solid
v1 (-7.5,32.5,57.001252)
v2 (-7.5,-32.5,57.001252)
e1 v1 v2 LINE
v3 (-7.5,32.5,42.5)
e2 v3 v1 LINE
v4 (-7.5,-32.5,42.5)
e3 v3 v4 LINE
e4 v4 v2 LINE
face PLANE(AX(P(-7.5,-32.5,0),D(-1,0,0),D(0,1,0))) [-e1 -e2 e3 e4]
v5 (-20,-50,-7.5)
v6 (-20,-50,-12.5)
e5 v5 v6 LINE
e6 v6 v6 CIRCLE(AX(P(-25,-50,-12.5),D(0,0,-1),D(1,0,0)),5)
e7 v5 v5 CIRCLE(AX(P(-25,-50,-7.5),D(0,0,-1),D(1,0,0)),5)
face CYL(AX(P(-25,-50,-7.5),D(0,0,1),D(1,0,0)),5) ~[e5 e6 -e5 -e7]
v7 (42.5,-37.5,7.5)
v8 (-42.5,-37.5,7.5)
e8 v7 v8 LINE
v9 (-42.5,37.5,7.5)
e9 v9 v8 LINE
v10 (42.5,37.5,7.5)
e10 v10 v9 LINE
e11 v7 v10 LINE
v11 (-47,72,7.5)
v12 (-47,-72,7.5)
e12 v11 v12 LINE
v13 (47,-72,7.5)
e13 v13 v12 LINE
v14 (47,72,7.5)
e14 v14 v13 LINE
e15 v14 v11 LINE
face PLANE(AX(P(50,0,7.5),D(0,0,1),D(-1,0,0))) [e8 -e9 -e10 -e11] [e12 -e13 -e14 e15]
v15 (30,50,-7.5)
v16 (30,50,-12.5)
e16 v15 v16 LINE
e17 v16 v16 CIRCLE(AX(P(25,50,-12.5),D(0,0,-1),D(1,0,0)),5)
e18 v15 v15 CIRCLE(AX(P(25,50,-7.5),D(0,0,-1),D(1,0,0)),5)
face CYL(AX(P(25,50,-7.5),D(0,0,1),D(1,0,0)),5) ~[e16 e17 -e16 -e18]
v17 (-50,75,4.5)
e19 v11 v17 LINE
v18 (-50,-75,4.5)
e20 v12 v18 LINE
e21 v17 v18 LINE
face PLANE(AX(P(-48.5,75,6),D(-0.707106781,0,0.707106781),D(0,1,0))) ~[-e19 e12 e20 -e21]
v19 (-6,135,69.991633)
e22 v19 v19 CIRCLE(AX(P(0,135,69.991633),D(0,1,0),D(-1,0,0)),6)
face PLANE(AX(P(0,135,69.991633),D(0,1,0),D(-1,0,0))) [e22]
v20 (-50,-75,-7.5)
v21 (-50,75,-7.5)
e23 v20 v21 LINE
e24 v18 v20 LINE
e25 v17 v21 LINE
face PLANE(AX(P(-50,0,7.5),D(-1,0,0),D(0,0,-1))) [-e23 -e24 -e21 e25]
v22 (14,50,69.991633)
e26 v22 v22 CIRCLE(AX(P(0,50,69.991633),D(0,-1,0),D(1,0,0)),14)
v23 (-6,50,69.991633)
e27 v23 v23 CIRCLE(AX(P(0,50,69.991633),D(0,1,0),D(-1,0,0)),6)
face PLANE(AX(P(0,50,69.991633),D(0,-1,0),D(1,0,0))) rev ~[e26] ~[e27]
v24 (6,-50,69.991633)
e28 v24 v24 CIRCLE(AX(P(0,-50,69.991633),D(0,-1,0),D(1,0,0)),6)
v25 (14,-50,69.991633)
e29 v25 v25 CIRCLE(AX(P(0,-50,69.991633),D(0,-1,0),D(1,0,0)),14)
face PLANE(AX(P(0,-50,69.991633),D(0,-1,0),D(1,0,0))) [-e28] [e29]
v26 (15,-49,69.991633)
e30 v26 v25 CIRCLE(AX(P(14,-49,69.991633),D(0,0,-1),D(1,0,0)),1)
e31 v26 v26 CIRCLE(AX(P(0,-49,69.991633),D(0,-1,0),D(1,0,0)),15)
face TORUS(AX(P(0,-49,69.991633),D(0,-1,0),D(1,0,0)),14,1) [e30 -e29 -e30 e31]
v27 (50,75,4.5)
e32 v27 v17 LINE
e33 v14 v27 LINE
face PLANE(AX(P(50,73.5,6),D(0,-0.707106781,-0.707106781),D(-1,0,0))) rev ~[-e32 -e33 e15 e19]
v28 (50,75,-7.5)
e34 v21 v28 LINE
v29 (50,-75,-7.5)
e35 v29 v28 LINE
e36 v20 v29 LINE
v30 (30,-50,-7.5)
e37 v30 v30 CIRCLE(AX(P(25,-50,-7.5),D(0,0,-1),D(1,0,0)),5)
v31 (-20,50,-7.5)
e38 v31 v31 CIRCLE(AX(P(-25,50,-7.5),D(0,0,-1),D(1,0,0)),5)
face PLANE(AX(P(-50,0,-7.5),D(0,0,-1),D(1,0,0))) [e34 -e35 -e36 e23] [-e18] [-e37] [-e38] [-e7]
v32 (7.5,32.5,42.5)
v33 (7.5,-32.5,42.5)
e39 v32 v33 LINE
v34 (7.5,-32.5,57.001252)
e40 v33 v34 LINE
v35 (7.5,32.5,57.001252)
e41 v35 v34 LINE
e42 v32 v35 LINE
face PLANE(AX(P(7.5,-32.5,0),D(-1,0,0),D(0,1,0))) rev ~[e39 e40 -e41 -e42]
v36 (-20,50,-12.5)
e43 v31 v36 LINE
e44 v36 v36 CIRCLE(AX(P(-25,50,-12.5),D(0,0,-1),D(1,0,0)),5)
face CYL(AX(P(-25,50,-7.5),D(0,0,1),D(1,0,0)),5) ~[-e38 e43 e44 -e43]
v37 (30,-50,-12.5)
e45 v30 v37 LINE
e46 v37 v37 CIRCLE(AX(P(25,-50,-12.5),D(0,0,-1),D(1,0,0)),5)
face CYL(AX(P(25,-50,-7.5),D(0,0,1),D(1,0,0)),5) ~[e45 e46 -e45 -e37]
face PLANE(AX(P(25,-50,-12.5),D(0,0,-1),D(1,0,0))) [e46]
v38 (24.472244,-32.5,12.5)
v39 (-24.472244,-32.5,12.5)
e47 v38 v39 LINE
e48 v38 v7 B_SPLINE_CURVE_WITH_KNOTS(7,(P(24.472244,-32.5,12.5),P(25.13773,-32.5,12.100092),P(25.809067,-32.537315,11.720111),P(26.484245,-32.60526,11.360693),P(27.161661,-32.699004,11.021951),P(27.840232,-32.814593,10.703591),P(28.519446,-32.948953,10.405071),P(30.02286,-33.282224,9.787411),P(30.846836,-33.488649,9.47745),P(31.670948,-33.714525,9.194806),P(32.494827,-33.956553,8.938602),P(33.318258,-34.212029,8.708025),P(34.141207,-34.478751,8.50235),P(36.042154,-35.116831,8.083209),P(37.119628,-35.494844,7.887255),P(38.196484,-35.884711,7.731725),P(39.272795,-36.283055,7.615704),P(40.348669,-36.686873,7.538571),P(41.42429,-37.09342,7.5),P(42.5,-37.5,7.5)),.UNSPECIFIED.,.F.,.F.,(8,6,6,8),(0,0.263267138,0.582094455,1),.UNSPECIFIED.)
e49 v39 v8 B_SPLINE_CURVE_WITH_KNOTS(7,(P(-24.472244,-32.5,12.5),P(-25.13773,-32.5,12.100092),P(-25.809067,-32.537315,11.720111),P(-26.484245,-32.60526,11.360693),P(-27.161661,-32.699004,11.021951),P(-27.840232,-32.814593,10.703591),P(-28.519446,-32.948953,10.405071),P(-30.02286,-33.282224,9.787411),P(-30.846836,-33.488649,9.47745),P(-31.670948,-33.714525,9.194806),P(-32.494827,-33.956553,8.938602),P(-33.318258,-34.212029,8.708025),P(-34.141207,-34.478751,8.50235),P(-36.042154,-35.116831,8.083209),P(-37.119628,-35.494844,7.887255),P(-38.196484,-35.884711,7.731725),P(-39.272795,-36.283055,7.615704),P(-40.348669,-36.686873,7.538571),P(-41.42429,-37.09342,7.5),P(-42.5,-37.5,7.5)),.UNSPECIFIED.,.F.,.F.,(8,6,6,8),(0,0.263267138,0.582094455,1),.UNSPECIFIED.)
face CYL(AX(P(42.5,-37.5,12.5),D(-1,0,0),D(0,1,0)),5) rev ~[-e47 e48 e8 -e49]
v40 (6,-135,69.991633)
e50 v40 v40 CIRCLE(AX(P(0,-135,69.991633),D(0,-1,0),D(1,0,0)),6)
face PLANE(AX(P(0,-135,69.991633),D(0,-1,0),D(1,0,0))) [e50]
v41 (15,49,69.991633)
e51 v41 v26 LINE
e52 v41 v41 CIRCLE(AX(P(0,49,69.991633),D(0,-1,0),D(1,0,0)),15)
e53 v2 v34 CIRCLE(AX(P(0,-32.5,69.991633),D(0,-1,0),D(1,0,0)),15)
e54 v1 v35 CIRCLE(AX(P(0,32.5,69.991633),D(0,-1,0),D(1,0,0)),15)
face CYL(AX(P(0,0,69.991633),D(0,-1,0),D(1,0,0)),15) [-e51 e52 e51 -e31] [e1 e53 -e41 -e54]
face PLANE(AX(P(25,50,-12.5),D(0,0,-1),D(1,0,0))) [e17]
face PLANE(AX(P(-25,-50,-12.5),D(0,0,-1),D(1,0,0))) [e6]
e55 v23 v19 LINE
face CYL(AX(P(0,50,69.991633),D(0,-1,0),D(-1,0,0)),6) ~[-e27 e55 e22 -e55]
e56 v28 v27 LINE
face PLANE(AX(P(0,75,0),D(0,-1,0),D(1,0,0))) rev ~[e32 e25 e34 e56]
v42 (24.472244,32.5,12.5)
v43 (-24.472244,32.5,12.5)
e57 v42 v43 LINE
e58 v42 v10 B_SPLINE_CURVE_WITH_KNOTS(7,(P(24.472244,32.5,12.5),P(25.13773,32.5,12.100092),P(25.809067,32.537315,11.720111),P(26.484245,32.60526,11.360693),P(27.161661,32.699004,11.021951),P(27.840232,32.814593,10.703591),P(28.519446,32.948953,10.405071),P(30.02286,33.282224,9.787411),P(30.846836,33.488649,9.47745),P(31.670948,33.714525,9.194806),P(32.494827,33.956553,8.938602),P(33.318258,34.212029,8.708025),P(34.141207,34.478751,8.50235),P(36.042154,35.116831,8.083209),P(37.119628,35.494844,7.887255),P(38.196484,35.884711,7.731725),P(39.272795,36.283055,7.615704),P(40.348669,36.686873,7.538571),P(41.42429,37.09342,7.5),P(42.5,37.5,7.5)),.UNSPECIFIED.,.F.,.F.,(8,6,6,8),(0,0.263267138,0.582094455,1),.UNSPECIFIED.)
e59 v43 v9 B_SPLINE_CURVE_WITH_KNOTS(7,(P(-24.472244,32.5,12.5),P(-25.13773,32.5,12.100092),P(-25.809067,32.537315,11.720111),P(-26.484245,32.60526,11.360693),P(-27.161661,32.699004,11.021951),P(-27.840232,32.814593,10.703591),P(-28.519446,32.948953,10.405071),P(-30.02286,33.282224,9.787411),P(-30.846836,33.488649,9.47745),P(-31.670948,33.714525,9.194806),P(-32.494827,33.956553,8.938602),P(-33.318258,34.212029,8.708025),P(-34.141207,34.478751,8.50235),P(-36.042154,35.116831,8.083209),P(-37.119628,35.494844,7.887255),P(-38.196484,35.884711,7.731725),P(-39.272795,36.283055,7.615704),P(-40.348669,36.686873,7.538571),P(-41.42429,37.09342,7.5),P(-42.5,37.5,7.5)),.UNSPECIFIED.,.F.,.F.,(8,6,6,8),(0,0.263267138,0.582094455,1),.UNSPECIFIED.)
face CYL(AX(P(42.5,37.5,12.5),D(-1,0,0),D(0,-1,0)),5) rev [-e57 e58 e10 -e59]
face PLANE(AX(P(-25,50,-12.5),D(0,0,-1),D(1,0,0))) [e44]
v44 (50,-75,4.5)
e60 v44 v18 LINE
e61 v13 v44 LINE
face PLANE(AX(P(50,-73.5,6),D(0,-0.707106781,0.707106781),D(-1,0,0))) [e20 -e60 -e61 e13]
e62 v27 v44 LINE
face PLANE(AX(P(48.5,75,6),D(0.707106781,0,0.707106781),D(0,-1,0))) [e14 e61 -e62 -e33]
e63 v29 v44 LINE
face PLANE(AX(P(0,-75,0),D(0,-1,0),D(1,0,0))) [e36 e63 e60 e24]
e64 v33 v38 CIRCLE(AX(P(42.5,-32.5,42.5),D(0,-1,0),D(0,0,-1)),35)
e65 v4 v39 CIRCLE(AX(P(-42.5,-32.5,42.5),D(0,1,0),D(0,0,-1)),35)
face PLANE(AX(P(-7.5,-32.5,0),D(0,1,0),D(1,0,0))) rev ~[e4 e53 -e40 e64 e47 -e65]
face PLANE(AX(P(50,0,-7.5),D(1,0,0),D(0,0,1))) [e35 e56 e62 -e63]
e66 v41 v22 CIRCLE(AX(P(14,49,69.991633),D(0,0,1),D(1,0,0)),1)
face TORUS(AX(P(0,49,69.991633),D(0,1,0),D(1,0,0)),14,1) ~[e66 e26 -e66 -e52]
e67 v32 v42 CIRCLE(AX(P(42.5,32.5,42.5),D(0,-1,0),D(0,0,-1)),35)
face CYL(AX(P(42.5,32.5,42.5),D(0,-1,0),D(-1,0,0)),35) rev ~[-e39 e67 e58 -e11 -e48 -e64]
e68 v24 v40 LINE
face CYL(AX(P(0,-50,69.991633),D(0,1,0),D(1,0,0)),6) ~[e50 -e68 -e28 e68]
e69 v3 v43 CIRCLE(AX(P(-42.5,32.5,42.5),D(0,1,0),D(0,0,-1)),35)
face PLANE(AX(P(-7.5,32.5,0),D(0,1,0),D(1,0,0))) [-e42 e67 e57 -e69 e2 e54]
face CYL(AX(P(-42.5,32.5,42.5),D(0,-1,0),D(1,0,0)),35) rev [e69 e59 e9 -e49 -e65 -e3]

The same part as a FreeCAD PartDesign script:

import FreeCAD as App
import Part
import Sketcher

V = App.Vector


def edges_at(feature, points):
    """Names of the edges that pass closest to the given points."""
    edges = feature.Shape.Edges
    near = lambda p: min(range(len(edges)), key=lambda i: edges[i].distToShape(Part.Vertex(*p))[0])
    return sorted({f"Edge{near(p) + 1}" for p in points})

doc = App.newDocument("Part")
params = doc.addObject("Spreadsheet::Sheet", "Params")
for row, (alias, value) in enumerate([
    ("sketch1_width", "100 mm"),
    ("sketch1_height", "15 mm"),
    ("pad1_length", "150 mm"),
    ("sketch2_width", "15 mm"),
    ("sketch2_height", "65 mm"),
    ("pad2_length", "70 mm"),
    ("sketch3_diameter", "30 mm"),
    ("pad3_length", "100 mm"),
    ("sketch4_diameter", "12 mm"),
    ("pad4_length", "85 mm"),
    ("sketch5_diameter", "12 mm"),
    ("pad5_length", "85 mm"),
    ("sketch6_diameter", "10 mm"),
    ("pad6_length", "5 mm"),
    ("fillet_radius", "35 mm"),
    ("fillet2_radius", "5 mm"),
    ("chamfer_size", "3 mm"),
    ("fillet3_radius", "1 mm"),
], start=1):
    params.set(f"A{row}", alias)
    params.set(f"B{row}", "=" + value)
    params.setAlias(f"B{row}", alias)

body = doc.addObject("PartDesign::Body", "Body")

# Sketch on XZ plane
sketch1 = body.newObject("Sketcher::SketchObject", "Sketch")
sketch1.AttachmentSupport = (doc.getObject("XZ_Plane"), [""])
sketch1.MapMode = "FlatFace"
sketch1.addGeometry(Part.LineSegment(V(50, -8, 0), V(50, 8, 0)), False)
sketch1.addGeometry(Part.LineSegment(V(50, 8, 0), V(-50, 8, 0)), False)
sketch1.addGeometry(Part.LineSegment(V(-50, 8, 0), V(-50, -8, 0)), False)
sketch1.addGeometry(Part.LineSegment(V(-50, -8, 0), V(50, -8, 0)), False)
sketch1.addConstraint(Sketcher.Constraint("Coincident", 0, 2, 1, 1))
sketch1.addConstraint(Sketcher.Constraint("Coincident", 1, 2, 2, 1))
sketch1.addConstraint(Sketcher.Constraint("Coincident", 2, 2, 3, 1))
sketch1.addConstraint(Sketcher.Constraint("Coincident", 3, 2, 0, 1))
sketch1.addConstraint(Sketcher.Constraint("Vertical", 0))
sketch1.addConstraint(Sketcher.Constraint("Horizontal", 1))
sketch1.addConstraint(Sketcher.Constraint("Vertical", 2))
sketch1.addConstraint(Sketcher.Constraint("Horizontal", 3))
sketch1.addConstraint(Sketcher.Constraint("Symmetric", 0, 2, 2, 2, -1, 1))
sketch1.addConstraint(Sketcher.Constraint("DistanceX", 1, 2, 1, 1, 100.0))
sketch1.addConstraint(Sketcher.Constraint("DistanceY", 0, 1, 0, 2, 15.0))
sketch1.setExpression("Constraints[9]", "Params.sketch1_width")
sketch1.setExpression("Constraints[10]", "Params.sketch1_height")
pad1 = body.newObject("PartDesign::Pad", "Pad")
pad1.Profile = sketch1
pad1.setExpression("Length", "Params.pad1_length")
pad1.Midplane = True

# Sketch on XY plane
sketch2 = body.newObject("Sketcher::SketchObject", "Sketch001")
sketch2.AttachmentSupport = (doc.getObject("XY_Plane"), [""])
sketch2.MapMode = "FlatFace"
sketch2.addGeometry(Part.LineSegment(V(-8, 32, 0), V(-8, -32, 0)), False)
sketch2.addGeometry(Part.LineSegment(V(-8, -32, 0), V(8, -32, 0)), False)
sketch2.addGeometry(Part.LineSegment(V(8, -32, 0), V(8, 32, 0)), False)
sketch2.addGeometry(Part.LineSegment(V(8, 32, 0), V(-8, 32, 0)), False)
sketch2.addConstraint(Sketcher.Constraint("Coincident", 0, 2, 1, 1))
sketch2.addConstraint(Sketcher.Constraint("Coincident", 1, 2, 2, 1))
sketch2.addConstraint(Sketcher.Constraint("Coincident", 2, 2, 3, 1))
sketch2.addConstraint(Sketcher.Constraint("Coincident", 3, 2, 0, 1))
sketch2.addConstraint(Sketcher.Constraint("Vertical", 0))
sketch2.addConstraint(Sketcher.Constraint("Horizontal", 1))
sketch2.addConstraint(Sketcher.Constraint("Vertical", 2))
sketch2.addConstraint(Sketcher.Constraint("Horizontal", 3))
sketch2.addConstraint(Sketcher.Constraint("Symmetric", 0, 2, 2, 2, -1, 1))
sketch2.addConstraint(Sketcher.Constraint("DistanceX", 1, 1, 1, 2, 15.0))
sketch2.addConstraint(Sketcher.Constraint("DistanceY", 0, 2, 0, 1, 65.0))
sketch2.setExpression("Constraints[9]", "Params.sketch2_width")
sketch2.setExpression("Constraints[10]", "Params.sketch2_height")
pad2 = body.newObject("PartDesign::Pad", "Pad001")
pad2.Profile = sketch2
pad2.setExpression("Length", "Params.pad2_length")

# Sketch on XZ plane
sketch3 = body.newObject("Sketcher::SketchObject", "Sketch002")
sketch3.AttachmentSupport = (doc.getObject("XZ_Plane"), [""])
sketch3.MapMode = "FlatFace"
sketch3.addGeometry(Part.Circle(V(0, 70, 0), V(0, 0, 1), 15), False)
sketch3.addConstraint(Sketcher.Constraint("PointOnObject", 0, 3, -2))
sketch3.addConstraint(Sketcher.Constraint("Diameter", 0, 30.0))
sketch3.addConstraint(Sketcher.Constraint("DistanceY", -1, 1, 0, 3, 69.991633))
sketch3.setExpression("Constraints[1]", "Params.sketch3_diameter")
pad3 = body.newObject("PartDesign::Pad", "Pad002")
pad3.Profile = sketch3
pad3.setExpression("Length", "Params.pad3_length")
pad3.Midplane = True

# Sketch on XZ plane
sketch4 = body.newObject("Sketcher::SketchObject", "Sketch003")
sketch4.AttachmentSupport = (doc.getObject("XZ_Plane"), [""])
sketch4.MapMode = "FlatFace"
sketch4.AttachmentOffset = App.Placement(V(0, 0, -50), App.Rotation())
sketch4.addGeometry(Part.Circle(V(0, 70, 0), V(0, 0, 1), 6), False)
sketch4.addConstraint(Sketcher.Constraint("PointOnObject", 0, 3, -2))
sketch4.addConstraint(Sketcher.Constraint("Diameter", 0, 12.0))
sketch4.addConstraint(Sketcher.Constraint("DistanceY", -1, 1, 0, 3, 69.991633))
sketch4.setExpression("Constraints[1]", "Params.sketch4_diameter")
pad4 = body.newObject("PartDesign::Pad", "Pad003")
pad4.Profile = sketch4
pad4.setExpression("Length", "Params.pad4_length")
pad4.Reversed = True

# Sketch on XZ plane
sketch5 = body.newObject("Sketcher::SketchObject", "Sketch004")
sketch5.AttachmentSupport = (doc.getObject("XZ_Plane"), [""])
sketch5.MapMode = "FlatFace"
sketch5.AttachmentOffset = App.Placement(V(0, 0, 50), App.Rotation())
sketch5.addGeometry(Part.Circle(V(0, 70, 0), V(0, 0, 1), 6), False)
sketch5.addConstraint(Sketcher.Constraint("PointOnObject", 0, 3, -2))
sketch5.addConstraint(Sketcher.Constraint("Diameter", 0, 12.0))
sketch5.addConstraint(Sketcher.Constraint("DistanceY", -1, 1, 0, 3, 69.991633))
sketch5.setExpression("Constraints[1]", "Params.sketch5_diameter")
pad5 = body.newObject("PartDesign::Pad", "Pad004")
pad5.Profile = sketch5
pad5.setExpression("Length", "Params.pad5_length")

# Sketch on XY plane
sketch6 = body.newObject("Sketcher::SketchObject", "Sketch005")
sketch6.AttachmentSupport = (doc.getObject("XY_Plane"), [""])
sketch6.MapMode = "FlatFace"
sketch6.AttachmentOffset = App.Placement(V(0, 0, -7.5), App.Rotation())
sketch6.addGeometry(Part.Circle(V(-25, -50, 0), V(0, 0, 1), 5), False)
sketch6.addGeometry(Part.Circle(V(25, -50, 0), V(0, 0, 1), 5), False)
sketch6.addGeometry(Part.Circle(V(-25, 50, 0), V(0, 0, 1), 5), False)
sketch6.addGeometry(Part.Circle(V(25, 50, 0), V(0, 0, 1), 5), False)
sketch6.addConstraint(Sketcher.Constraint("Equal", 0, 1))
sketch6.addConstraint(Sketcher.Constraint("Equal", 1, 2))
sketch6.addConstraint(Sketcher.Constraint("Equal", 2, 3))
sketch6.addConstraint(Sketcher.Constraint("Symmetric", 1, 3, 2, 3, -1, 1))
sketch6.addConstraint(Sketcher.Constraint("Symmetric", 0, 3, 3, 3, -1, 1))
sketch6.addConstraint(Sketcher.Constraint("Symmetric", 0, 3, 1, 3, -2))
sketch6.addConstraint(Sketcher.Constraint("Diameter", 0, 10.0))
sketch6.addConstraint(Sketcher.Constraint("DistanceX", 0, 3, -1, 1, 25.0))
sketch6.addConstraint(Sketcher.Constraint("DistanceY", 0, 3, -1, 1, 50.0))
sketch6.setExpression("Constraints[6]", "Params.sketch6_diameter")
pad6 = body.newObject("PartDesign::Pad", "Pad005")
pad6.Profile = sketch6
pad6.setExpression("Length", "Params.pad6_length")
pad6.Reversed = True
doc.recompute()

fillet = body.newObject("PartDesign::Fillet", "Fillet")
fillet.Base = (pad6, edges_at(pad6, [(7.5, 0, 7.5), (-7.5, 0, 7.5)]))
fillet.setExpression("Radius", "Params.fillet_radius")
doc.recompute()

fillet2 = body.newObject("PartDesign::Fillet", "Fillet001")
fillet2.Base = (fillet, edges_at(fillet, [
    (0, -32.5, 7.5),
    (0, -32.5, 7.5),
    (0, -32.5, 7.5),
    (0, 32.5, 7.5),
    (0, 32.5, 7.5),
    (0, 32.5, 7.5),
]))
fillet2.setExpression("Radius", "Params.fillet2_radius")
doc.recompute()

chamfer = body.newObject("PartDesign::Chamfer", "Chamfer")
chamfer.Base = (fillet2, edges_at(fillet2, [
    (-50, 0, 7.5),
    (0, 75, 7.5),
    (50, 0, 7.5),
    (0, -75, 7.5),
]))
chamfer.setExpression("Size", "Params.chamfer_size")
doc.recompute()

fillet3 = body.newObject("PartDesign::Fillet", "Fillet002")
fillet3.Base = (chamfer, edges_at(chamfer, [(-15, -50, 69.992), (-15, 50, 69.992)]))
fillet3.setExpression("Radius", "Params.fillet3_radius")

doc.recompute()
